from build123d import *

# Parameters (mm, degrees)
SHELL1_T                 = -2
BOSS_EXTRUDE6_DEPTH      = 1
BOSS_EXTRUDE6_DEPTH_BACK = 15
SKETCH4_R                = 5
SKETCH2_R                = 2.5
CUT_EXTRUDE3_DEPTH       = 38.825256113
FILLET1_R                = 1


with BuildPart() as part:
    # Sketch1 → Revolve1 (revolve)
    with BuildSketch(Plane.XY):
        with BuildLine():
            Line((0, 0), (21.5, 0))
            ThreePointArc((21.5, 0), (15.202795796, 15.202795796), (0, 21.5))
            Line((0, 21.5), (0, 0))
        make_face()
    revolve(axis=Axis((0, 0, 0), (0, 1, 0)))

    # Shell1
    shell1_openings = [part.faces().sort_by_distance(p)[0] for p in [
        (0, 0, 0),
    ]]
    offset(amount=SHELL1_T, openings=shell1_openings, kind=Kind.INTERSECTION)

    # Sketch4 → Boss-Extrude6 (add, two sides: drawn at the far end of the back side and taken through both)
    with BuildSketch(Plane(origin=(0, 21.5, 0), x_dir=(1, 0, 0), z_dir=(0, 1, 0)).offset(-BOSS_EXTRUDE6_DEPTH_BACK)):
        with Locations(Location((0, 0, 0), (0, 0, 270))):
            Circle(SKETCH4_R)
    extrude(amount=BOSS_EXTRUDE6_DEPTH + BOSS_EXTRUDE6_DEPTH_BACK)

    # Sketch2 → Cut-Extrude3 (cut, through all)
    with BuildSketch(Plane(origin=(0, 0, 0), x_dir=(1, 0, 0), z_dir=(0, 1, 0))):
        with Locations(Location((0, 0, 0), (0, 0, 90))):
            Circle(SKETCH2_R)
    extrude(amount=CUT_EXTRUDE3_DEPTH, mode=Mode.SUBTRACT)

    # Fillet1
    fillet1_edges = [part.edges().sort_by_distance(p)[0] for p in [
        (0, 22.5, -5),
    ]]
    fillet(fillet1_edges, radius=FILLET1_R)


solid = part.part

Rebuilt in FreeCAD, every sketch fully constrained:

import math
import FreeCAD as App
import Part
import Sketcher
from FreeCAD import Vector
Q = App.Units.Quantity


def edges_at(feature, points):
    """Names of the edges that pass closest to the given points."""
    edges = feature.Shape.Edges
    near = lambda p: min(range(len(edges)), key=lambda i: edges[i].distToShape(Part.Vertex(*p))[0])
    return sorted({f"Edge{near(p) + 1}" for p in points})


def faces_at(feature, points):
    """Names of the faces that lie closest to the given points."""
    faces = feature.Shape.Faces
    near = lambda p: min(range(len(faces)), key=lambda i: faces[i].distToShape(Part.Vertex(*p))[0])
    return sorted({f"Face{near(p) + 1}" for p in points})

doc = App.newDocument("Part")
params = doc.addObject("Spreadsheet::Sheet", "Params")
for row, (alias, value) in enumerate([
    ("sketch1_radius", "21.5 mm"),
    ("revolution_angle", "360 deg"),
    ("thickness_wall", "2 mm"),
    ("sketch2_diameter", "10 mm"),
    ("pad1_length", "1 mm"),
    ("pad1_length2", "15 mm"),
    ("sketch3_diameter", "5 mm"),
    ("fillet_radius", "1 mm"),
], start=1):
    params.set(f"A{row}", alias)
    params.set(f"B{row}", "=" + value)
    params.setAlias(f"B{row}", alias)

body = doc.addObject("PartDesign::Body", "Body")

# Sketch on XY plane
sketch1 = body.newObject("Sketcher::SketchObject", "Sketch")
sketch1.AttachmentSupport = (doc.getObject("XY_Plane"), [""])
sketch1.MapMode = "FlatFace"
sketch1.addGeometry([
    Part.LineSegment(Vector(0, 0, 0), Vector(22, 0, 0)),
    Part.ArcOfCircle(Part.Circle(Vector(0, 0, 0), Vector(0, 0, 1), 21), math.radians(0), math.radians(90)),
    Part.LineSegment(Vector(0, 22, 0), Vector(0, 0, 0)),
], False)
sketch1.addConstraint([
    Sketcher.Constraint("Coincident", 0, 2, 1, 1),
    Sketcher.Constraint("Coincident", 1, 2, 2, 1),
    Sketcher.Constraint("Coincident", 2, 2, 0, 1),
    Sketcher.Constraint("Horizontal", 0),
    Sketcher.Constraint("Vertical", 2),
    Sketcher.Constraint("Coincident", 1, 3, -1, 1),
    Sketcher.Constraint("Coincident", 2, 2, -1, 1),
    Sketcher.Constraint("Radius", 1, Q("21.5 mm")),
])
sketch1.setExpression("Constraints[7]", "Params.sketch1_radius")
revolution = body.newObject("PartDesign::Revolution", "Revolution")
revolution.Profile = sketch1
revolution.ReferenceAxis = (sketch1, ["V_Axis"])
revolution.setExpression("Angle", "Params.revolution_angle")
doc.recompute()

thickness = body.newObject("PartDesign::Thickness", "Thickness")
thickness.Base = (revolution, faces_at(revolution, [(0, 0, 0)]))
thickness.setExpression("Value", "Params.thickness_wall")
thickness.Reversed = True
thickness.Join = "Intersection"

# Sketch on XZ plane
sketch2 = body.newObject("Sketcher::SketchObject", "Sketch001")
sketch2.AttachmentSupport = (doc.getObject("XZ_Plane"), [""])
sketch2.MapMode = "FlatFace"
sketch2.AttachmentOffset = App.Placement(Vector(0, 0, -21.5), App.Rotation())
sketch2.addGeometry(Part.Circle(Vector(0, 0, 0), Vector(0, 0, 1), 5), False)
sketch2.addConstraint([
    Sketcher.Constraint("Coincident", 0, 3, -1, 1),
    Sketcher.Constraint("Diameter", 0, Q("10 mm")),
])
sketch2.setExpression("Constraints[1]", "Params.sketch2_diameter")
pad1 = body.newObject("PartDesign::Pad", "Pad")
pad1.Profile = sketch2
pad1.Type = "TwoLengths"
pad1.setExpression("Length", "Params.pad1_length")
pad1.setExpression("Length2", "Params.pad1_length2")
pad1.Reversed = True

# Sketch on XZ plane
sketch3 = body.newObject("Sketcher::SketchObject", "Sketch002")
sketch3.AttachmentSupport = (doc.getObject("XZ_Plane"), [""])
sketch3.MapMode = "FlatFace"
sketch3.addGeometry(Part.Circle(Vector(0, 0, 0), Vector(0, 0, 1), 2.5), False)
sketch3.addConstraint([
    Sketcher.Constraint("Coincident", 0, 3, -1, 1),
    Sketcher.Constraint("Diameter", 0, Q("5 mm")),
])
sketch3.setExpression("Constraints[1]", "Params.sketch3_diameter")
pocket1 = body.newObject("PartDesign::Pocket", "Pocket")
pocket1.Profile = sketch3
pocket1.Type = "ThroughAll"
doc.recompute()

fillet = body.newObject("PartDesign::Fillet", "Fillet")
fillet.Base = (pocket1, edges_at(pocket1, [(0, 22.5, -5)]))
fillet.setExpression("Radius", "Params.fillet_radius")

doc.recompute()
